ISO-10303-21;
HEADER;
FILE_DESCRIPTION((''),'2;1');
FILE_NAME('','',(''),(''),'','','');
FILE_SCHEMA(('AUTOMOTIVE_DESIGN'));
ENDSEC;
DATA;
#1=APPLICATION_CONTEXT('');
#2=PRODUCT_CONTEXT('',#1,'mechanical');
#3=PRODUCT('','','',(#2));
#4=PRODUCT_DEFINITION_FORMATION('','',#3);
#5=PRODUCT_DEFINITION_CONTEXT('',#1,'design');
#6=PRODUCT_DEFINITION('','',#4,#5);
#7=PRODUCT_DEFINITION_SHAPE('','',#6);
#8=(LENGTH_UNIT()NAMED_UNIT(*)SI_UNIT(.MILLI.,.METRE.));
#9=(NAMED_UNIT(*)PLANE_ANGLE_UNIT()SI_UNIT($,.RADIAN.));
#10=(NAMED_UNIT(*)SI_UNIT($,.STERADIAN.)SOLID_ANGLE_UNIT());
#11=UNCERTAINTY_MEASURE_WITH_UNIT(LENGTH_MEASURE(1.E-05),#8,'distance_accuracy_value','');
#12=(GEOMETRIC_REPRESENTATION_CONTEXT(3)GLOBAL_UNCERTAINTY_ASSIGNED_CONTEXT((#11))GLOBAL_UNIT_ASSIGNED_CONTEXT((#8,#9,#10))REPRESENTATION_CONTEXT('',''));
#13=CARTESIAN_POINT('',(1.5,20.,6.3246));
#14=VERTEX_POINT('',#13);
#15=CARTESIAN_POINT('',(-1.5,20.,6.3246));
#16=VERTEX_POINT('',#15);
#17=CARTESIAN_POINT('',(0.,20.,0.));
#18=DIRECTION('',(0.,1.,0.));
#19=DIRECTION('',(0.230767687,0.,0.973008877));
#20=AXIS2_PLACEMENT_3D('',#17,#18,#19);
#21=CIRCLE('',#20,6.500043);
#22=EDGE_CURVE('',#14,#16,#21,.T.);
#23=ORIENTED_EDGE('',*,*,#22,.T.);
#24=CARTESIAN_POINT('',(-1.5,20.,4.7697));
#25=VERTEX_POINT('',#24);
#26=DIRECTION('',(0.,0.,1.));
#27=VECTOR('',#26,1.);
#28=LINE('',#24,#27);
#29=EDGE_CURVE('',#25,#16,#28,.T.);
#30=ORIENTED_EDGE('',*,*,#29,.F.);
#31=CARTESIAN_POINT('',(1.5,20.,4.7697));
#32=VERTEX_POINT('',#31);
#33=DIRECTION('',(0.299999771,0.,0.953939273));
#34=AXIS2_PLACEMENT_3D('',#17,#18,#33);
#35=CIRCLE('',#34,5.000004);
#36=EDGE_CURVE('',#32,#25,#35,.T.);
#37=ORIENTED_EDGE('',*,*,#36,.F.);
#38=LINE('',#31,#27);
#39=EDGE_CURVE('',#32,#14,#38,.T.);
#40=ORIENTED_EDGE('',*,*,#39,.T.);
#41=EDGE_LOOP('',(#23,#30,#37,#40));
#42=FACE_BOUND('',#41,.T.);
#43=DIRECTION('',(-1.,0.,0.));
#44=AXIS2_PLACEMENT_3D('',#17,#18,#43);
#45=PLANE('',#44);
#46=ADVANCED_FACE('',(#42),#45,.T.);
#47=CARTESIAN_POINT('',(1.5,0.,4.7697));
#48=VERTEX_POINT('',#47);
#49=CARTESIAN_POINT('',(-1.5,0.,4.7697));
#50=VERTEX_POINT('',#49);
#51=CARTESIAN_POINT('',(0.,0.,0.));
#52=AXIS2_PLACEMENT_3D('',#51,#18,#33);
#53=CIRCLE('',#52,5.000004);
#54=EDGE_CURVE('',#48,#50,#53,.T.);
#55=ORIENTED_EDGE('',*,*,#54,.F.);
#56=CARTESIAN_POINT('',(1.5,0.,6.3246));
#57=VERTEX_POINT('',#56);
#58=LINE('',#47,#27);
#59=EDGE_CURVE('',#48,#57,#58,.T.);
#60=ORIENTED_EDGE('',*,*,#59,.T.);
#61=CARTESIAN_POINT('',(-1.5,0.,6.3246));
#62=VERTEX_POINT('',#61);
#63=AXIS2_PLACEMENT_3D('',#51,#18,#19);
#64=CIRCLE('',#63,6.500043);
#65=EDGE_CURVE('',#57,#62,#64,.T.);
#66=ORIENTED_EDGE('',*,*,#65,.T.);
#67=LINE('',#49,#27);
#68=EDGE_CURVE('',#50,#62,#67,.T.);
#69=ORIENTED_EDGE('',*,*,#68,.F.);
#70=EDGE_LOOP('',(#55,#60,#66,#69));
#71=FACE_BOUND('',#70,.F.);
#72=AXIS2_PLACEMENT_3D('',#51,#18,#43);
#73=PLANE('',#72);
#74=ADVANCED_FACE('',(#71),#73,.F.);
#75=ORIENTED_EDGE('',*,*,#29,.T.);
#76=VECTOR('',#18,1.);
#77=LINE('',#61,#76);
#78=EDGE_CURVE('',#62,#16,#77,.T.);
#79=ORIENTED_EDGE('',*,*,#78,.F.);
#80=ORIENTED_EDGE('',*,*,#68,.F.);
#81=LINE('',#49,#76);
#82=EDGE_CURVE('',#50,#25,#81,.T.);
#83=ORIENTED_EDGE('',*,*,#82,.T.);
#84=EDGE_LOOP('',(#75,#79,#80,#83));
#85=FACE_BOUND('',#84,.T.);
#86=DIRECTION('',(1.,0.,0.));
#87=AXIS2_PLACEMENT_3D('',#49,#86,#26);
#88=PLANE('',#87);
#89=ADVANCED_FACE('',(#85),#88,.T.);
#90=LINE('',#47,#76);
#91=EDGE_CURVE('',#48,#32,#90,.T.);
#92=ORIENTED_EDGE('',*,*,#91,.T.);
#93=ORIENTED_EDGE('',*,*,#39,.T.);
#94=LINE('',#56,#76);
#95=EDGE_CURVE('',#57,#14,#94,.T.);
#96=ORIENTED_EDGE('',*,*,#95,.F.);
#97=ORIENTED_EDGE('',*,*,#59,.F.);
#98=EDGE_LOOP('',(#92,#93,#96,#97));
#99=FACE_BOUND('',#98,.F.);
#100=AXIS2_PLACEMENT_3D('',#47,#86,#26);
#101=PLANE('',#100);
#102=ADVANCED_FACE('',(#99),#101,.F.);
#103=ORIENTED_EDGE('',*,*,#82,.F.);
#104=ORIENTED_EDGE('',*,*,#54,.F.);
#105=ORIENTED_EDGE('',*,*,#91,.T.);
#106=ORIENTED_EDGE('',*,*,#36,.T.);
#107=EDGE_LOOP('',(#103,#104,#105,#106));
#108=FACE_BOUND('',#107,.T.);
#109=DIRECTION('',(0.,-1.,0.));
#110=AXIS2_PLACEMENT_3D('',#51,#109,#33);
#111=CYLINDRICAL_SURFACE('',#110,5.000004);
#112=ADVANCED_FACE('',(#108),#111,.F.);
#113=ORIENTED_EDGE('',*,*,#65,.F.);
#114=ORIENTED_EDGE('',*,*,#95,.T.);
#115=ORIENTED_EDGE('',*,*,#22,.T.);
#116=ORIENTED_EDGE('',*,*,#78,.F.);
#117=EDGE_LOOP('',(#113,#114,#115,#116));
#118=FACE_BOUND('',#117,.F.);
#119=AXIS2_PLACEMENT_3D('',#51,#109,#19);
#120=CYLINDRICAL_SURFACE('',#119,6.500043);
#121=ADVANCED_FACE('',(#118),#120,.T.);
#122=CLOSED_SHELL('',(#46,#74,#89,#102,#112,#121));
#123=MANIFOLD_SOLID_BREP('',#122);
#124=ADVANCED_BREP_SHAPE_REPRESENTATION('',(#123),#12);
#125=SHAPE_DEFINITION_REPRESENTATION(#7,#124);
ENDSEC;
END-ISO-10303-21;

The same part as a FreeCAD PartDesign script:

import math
import FreeCAD as App
import Part
import Sketcher

V = App.Vector
Q = App.Units.Quantity

doc = App.newDocument("Part")
body = doc.addObject("PartDesign::Body", "Body")

sketch1 = doc.addObject("Sketcher::SketchObject", "Sketch")
body.addObject(sketch1)
sketch1.AttachmentSupport = (doc.XZ_Plane, [""])
sketch1.MapMode = "FlatFace"
sketch1.addGeometry(Part.ArcOfCircle(Part.Circle(V(0, 0, 0), V(0, 0, 1), 5), math.radians(107), math.radians(433)), False)
sketch1.addGeometry(Part.LineSegment(V(1.5, 4.8, 0), V(1.5, 6.3, 0)), False)
sketch1.addGeometry(Part.ArcOfCircle(Part.Circle(V(0, 0, 0), V(0, 0, 1), 6.5), math.radians(103), math.radians(437)), False)
sketch1.addGeometry(Part.LineSegment(V(-1.5, 6.3, 0), V(-1.5, 4.8, 0)), False)
sketch1.addConstraint(Sketcher.Constraint("Coincident", 0, 2, 1, 1))
sketch1.addConstraint(Sketcher.Constraint("Coincident", 1, 2, 2, 2))
sketch1.addConstraint(Sketcher.Constraint("Coincident", 2, 1, 3, 1))
sketch1.addConstraint(Sketcher.Constraint("Coincident", 3, 2, 0, 1))
sketch1.addConstraint(Sketcher.Constraint("Vertical", 1))
sketch1.addConstraint(Sketcher.Constraint("Vertical", 3))
sketch1.addConstraint(Sketcher.Constraint("Coincident", 0, 3, -1, 1))
sketch1.addConstraint(Sketcher.Constraint("Coincident", 2, 3, -1, 1))
sketch1.addConstraint(Sketcher.Constraint("Horizontal", 1, 2, 2, 1))
sketch1.addConstraint(Sketcher.Constraint("Radius", 0, Q("5 mm")))
sketch1.addConstraint(Sketcher.Constraint("Radius", 2, Q("6.5 mm")))
sketch1.addConstraint(Sketcher.Constraint("DistanceX", 2, 1, 1, 2, Q("3 mm")))
pad1 = doc.addObject("PartDesign::Pad", "Pad")
body.addObject(pad1)
pad1.Profile = sketch1
pad1.Length = 20
pad1.Reversed = True

doc.recompute()
